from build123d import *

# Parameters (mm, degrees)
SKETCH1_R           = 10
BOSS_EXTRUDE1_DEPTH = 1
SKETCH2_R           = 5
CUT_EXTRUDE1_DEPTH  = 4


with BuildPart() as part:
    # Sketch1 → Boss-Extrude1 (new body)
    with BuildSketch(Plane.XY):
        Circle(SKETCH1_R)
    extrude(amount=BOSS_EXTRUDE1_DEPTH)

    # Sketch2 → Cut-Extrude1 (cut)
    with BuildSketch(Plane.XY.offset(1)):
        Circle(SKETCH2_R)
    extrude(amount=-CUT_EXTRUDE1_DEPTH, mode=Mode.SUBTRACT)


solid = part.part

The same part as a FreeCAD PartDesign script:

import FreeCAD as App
import Part
import Sketcher

V = App.Vector

doc = App.newDocument("Part")
params = doc.addObject("Spreadsheet::Sheet", "Params")
for row, (alias, value) in enumerate([
    ("sketch1_diameter", "20 mm"),
    ("pad1_length", "1 mm"),
    ("sketch2_diameter", "10 mm"),
    ("pocket1_length", "4 mm"),
], start=1):
    params.set(f"A{row}", alias)
    params.set(f"B{row}", "=" + value)
    params.setAlias(f"B{row}", alias)

body = doc.addObject("PartDesign::Body", "Body")

# Sketch on XY plane
sketch1 = body.newObject("Sketcher::SketchObject", "Sketch")
sketch1.AttachmentSupport = (doc.getObject("XY_Plane"), [""])
sketch1.MapMode = "FlatFace"
sketch1.addGeometry(Part.Circle(V(0, 0, 0), V(0, 0, 1), 10), False)
sketch1.addConstraint([
    Sketcher.Constraint("Coincident", 0, 3, -1, 1),
    Sketcher.Constraint("Diameter", 0, 20.0),
])
sketch1.setExpression("Constraints[1]", "Params.sketch1_diameter")
pad1 = body.newObject("PartDesign::Pad", "Pad")
pad1.Profile = sketch1
pad1.setExpression("Length", "Params.pad1_length")

# Sketch on XY plane
sketch2 = body.newObject("Sketcher::SketchObject", "Sketch001")
sketch2.AttachmentSupport = (doc.getObject("XY_Plane"), [""])
sketch2.MapMode = "FlatFace"
sketch2.AttachmentOffset = App.Placement(V(0, 0, 1), App.Rotation())
sketch2.addGeometry(Part.Circle(V(0, 0, 0), V(0, 0, 1), 5), False)
sketch2.addConstraint([
    Sketcher.Constraint("Coincident", 0, 3, -1, 1),
    Sketcher.Constraint("Diameter", 0, 10.0),
])
sketch2.setExpression("Constraints[1]", "Params.sketch2_diameter")
pocket1 = body.newObject("PartDesign::Pocket", "Pocket")
pocket1.Profile = sketch2
pocket1.setExpression("Length", "Params.pocket1_length")

doc.recompute()
